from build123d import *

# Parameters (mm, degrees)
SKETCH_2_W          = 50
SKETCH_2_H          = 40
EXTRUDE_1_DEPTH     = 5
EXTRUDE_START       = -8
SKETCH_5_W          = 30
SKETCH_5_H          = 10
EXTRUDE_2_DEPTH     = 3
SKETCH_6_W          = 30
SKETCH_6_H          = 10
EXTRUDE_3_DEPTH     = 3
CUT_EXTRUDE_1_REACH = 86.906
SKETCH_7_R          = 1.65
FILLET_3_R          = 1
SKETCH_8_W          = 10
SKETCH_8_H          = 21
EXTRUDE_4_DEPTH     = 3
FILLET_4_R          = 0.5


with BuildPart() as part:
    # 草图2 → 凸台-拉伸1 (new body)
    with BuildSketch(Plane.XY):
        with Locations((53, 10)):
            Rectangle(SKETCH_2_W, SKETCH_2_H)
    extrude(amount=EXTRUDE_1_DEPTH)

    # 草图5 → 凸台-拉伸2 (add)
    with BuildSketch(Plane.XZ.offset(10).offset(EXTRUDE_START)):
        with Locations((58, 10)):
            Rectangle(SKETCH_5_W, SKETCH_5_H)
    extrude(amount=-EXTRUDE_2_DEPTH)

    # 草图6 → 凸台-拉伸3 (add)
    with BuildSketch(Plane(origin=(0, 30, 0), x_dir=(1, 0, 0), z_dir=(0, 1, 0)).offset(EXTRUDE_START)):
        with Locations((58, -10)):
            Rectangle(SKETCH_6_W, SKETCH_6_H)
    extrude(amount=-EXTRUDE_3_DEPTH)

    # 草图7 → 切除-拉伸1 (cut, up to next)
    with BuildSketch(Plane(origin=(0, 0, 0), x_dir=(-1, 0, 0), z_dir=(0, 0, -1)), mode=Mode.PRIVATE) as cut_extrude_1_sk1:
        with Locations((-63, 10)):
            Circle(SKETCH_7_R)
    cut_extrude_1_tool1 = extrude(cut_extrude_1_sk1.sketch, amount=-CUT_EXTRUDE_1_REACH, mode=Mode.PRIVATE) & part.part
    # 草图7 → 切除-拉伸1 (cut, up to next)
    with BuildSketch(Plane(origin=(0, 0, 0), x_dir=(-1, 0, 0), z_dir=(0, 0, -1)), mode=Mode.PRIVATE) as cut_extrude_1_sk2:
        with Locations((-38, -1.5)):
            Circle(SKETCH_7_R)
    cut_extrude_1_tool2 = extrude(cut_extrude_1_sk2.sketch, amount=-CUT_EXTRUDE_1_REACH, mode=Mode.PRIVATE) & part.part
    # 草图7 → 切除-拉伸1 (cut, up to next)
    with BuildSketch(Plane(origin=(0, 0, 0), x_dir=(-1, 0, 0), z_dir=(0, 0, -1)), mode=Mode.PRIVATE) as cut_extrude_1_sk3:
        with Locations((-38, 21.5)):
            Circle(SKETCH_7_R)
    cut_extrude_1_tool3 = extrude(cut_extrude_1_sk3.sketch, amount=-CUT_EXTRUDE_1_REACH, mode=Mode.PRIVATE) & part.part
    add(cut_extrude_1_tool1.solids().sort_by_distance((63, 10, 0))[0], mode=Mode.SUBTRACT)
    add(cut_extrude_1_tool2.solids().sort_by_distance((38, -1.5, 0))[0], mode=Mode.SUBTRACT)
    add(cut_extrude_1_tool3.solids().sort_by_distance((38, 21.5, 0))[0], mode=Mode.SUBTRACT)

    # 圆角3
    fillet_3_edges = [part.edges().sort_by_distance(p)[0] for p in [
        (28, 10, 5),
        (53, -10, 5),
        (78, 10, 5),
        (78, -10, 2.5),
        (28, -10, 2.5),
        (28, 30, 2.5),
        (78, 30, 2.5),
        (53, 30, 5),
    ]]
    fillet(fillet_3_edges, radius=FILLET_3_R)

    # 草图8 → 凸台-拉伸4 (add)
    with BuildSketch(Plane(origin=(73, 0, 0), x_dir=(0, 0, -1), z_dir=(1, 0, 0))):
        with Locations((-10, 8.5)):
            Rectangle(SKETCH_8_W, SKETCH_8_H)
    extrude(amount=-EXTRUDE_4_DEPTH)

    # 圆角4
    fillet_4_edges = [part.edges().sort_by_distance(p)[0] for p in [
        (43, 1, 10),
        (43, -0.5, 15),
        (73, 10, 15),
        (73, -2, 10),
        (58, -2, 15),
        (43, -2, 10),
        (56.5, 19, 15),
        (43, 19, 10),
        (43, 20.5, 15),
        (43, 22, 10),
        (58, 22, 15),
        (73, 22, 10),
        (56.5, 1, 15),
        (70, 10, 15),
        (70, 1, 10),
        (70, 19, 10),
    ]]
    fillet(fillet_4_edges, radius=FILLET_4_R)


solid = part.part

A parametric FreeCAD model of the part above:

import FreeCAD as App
import Part
import Sketcher
from FreeCAD import Vector
Q = App.Units.Quantity


def edges_at(feature, points):
    """Names of the edges that pass closest to the given points."""
    edges = feature.Shape.Edges
    near = lambda p: min(range(len(edges)), key=lambda i: edges[i].distToShape(Part.Vertex(*p))[0])
    return sorted({f"Edge{near(p) + 1}" for p in points})

doc = App.newDocument("Part")
body = doc.addObject("PartDesign::Body", "Body")

# Sketch on XY plane
sketch1 = body.newObject("Sketcher::SketchObject", "Sketch")
sketch1.AttachmentSupport = (doc.getObject("XY_Plane"), [""])
sketch1.MapMode = "FlatFace"
sketch1.addGeometry(Part.LineSegment(Vector(28, 30, 0), Vector(28, -10, 0)), False)
sketch1.addGeometry(Part.LineSegment(Vector(28, -10, 0), Vector(78, -10, 0)), False)
sketch1.addGeometry(Part.LineSegment(Vector(78, -10, 0), Vector(78, 30, 0)), False)
sketch1.addGeometry(Part.LineSegment(Vector(78, 30, 0), Vector(28, 30, 0)), False)
sketch1.addConstraint(Sketcher.Constraint("Coincident", 0, 2, 1, 1))
sketch1.addConstraint(Sketcher.Constraint("Coincident", 1, 2, 2, 1))
sketch1.addConstraint(Sketcher.Constraint("Coincident", 2, 2, 3, 1))
sketch1.addConstraint(Sketcher.Constraint("Coincident", 3, 2, 0, 1))
sketch1.addConstraint(Sketcher.Constraint("Vertical", 0))
sketch1.addConstraint(Sketcher.Constraint("Horizontal", 1))
sketch1.addConstraint(Sketcher.Constraint("Vertical", 2))
sketch1.addConstraint(Sketcher.Constraint("Horizontal", 3))
sketch1.addConstraint(Sketcher.Constraint("DistanceX", 1, 1, 1, 2, Q("50 mm")))
sketch1.addConstraint(Sketcher.Constraint("DistanceY", 0, 2, 0, 1, Q("40 mm")))
sketch1.addConstraint(Sketcher.Constraint("DistanceX", -1, 1, 0, 2, Q("28 mm")))
sketch1.addConstraint(Sketcher.Constraint("DistanceY", 0, 2, -1, 1, Q("10 mm")))
pad1 = body.newObject("PartDesign::Pad", "Pad")
pad1.Profile = sketch1
pad1.Length = 5

# Sketch on XZ plane
sketch2 = body.newObject("Sketcher::SketchObject", "Sketch001")
sketch2.AttachmentSupport = (doc.getObject("XZ_Plane"), [""])
sketch2.MapMode = "FlatFace"
sketch2.AttachmentOffset = App.Placement(Vector(0, 0, 2), App.Rotation())
sketch2.addGeometry(Part.LineSegment(Vector(43, 15, 0), Vector(43, 5, 0)), False)
sketch2.addGeometry(Part.LineSegment(Vector(43, 5, 0), Vector(73, 5, 0)), False)
sketch2.addGeometry(Part.LineSegment(Vector(73, 5, 0), Vector(73, 15, 0)), False)
sketch2.addGeometry(Part.LineSegment(Vector(73, 15, 0), Vector(43, 15, 0)), False)
sketch2.addConstraint(Sketcher.Constraint("Coincident", 0, 2, 1, 1))
sketch2.addConstraint(Sketcher.Constraint("Coincident", 1, 2, 2, 1))
sketch2.addConstraint(Sketcher.Constraint("Coincident", 2, 2, 3, 1))
sketch2.addConstraint(Sketcher.Constraint("Coincident", 3, 2, 0, 1))
sketch2.addConstraint(Sketcher.Constraint("Vertical", 0))
sketch2.addConstraint(Sketcher.Constraint("Horizontal", 1))
sketch2.addConstraint(Sketcher.Constraint("Vertical", 2))
sketch2.addConstraint(Sketcher.Constraint("Horizontal", 3))
sketch2.addConstraint(Sketcher.Constraint("DistanceX", 1, 1, 1, 2, Q("30 mm")))
sketch2.addConstraint(Sketcher.Constraint("DistanceY", 0, 2, 0, 1, Q("10 mm")))
sketch2.addConstraint(Sketcher.Constraint("DistanceX", -1, 1, 0, 2, Q("43 mm")))
sketch2.addConstraint(Sketcher.Constraint("DistanceY", -1, 1, 0, 2, Q("5 mm")))
pad2 = body.newObject("PartDesign::Pad", "Pad001")
pad2.Profile = sketch2
pad2.Length = 3
pad2.Reversed = True

# Sketch on XZ plane
sketch3 = body.newObject("Sketcher::SketchObject", "Sketch002")
sketch3.AttachmentSupport = (doc.getObject("XZ_Plane"), [""])
sketch3.MapMode = "FlatFace"
sketch3.AttachmentOffset = App.Placement(Vector(0, 0, -22), App.Rotation())
sketch3.addGeometry(Part.LineSegment(Vector(43, 5, 0), Vector(43, 15, 0)), False)
sketch3.addGeometry(Part.LineSegment(Vector(43, 15, 0), Vector(73, 15, 0)), False)
sketch3.addGeometry(Part.LineSegment(Vector(73, 15, 0), Vector(73, 5, 0)), False)
sketch3.addGeometry(Part.LineSegment(Vector(73, 5, 0), Vector(43, 5, 0)), False)
sketch3.addConstraint(Sketcher.Constraint("Coincident", 0, 2, 1, 1))
sketch3.addConstraint(Sketcher.Constraint("Coincident", 1, 2, 2, 1))
sketch3.addConstraint(Sketcher.Constraint("Coincident", 2, 2, 3, 1))
sketch3.addConstraint(Sketcher.Constraint("Coincident", 3, 2, 0, 1))
sketch3.addConstraint(Sketcher.Constraint("Vertical", 0))
sketch3.addConstraint(Sketcher.Constraint("Horizontal", 1))
sketch3.addConstraint(Sketcher.Constraint("Vertical", 2))
sketch3.addConstraint(Sketcher.Constraint("Horizontal", 3))
sketch3.addConstraint(Sketcher.Constraint("DistanceX", 1, 1, 1, 2, Q("30 mm")))
sketch3.addConstraint(Sketcher.Constraint("DistanceY", 0, 1, 0, 2, Q("10 mm")))
sketch3.addConstraint(Sketcher.Constraint("DistanceX", -1, 1, 0, 2, Q("43 mm")))
sketch3.addConstraint(Sketcher.Constraint("DistanceY", -1, 1, 0, 2, Q("15 mm")))
pad3 = body.newObject("PartDesign::Pad", "Pad002")
pad3.Profile = sketch3
pad3.Length = 3

# Sketch on XY plane
sketch4 = body.newObject("Sketcher::SketchObject", "Sketch003")
sketch4.AttachmentSupport = (doc.getObject("XY_Plane"), [""])
sketch4.MapMode = "FlatFace"
sketch4.addGeometry(Part.Circle(Vector(63, 10, 0), Vector(0, 0, 1), 1.6), False)
sketch4.addConstraint(Sketcher.Constraint("Diameter", 0, Q("3.3 mm")))
sketch4.addConstraint(Sketcher.Constraint("DistanceX", -1, 1, 0, 3, Q("63 mm")))
sketch4.addConstraint(Sketcher.Constraint("DistanceY", -1, 1, 0, 3, Q("10 mm")))
pocket1 = body.newObject("PartDesign::Pocket", "Pocket")
pocket1.Profile = sketch4
pocket1.Type = "UpToFirst"
pocket1.Reversed = True

# Sketch on XY plane
sketch5 = body.newObject("Sketcher::SketchObject", "Sketch004")
sketch5.AttachmentSupport = (doc.getObject("XY_Plane"), [""])
sketch5.MapMode = "FlatFace"
sketch5.addGeometry(Part.Circle(Vector(38, -1.5, 0), Vector(0, 0, 1), 1.6), False)
sketch5.addConstraint(Sketcher.Constraint("Diameter", 0, Q("3.3 mm")))
sketch5.addConstraint(Sketcher.Constraint("DistanceX", -1, 1, 0, 3, Q("38 mm")))
sketch5.addConstraint(Sketcher.Constraint("DistanceY", 0, 3, -1, 1, Q("1.5 mm")))
pocket2 = body.newObject("PartDesign::Pocket", "Pocket001")
pocket2.Profile = sketch5
pocket2.Type = "UpToFirst"
pocket2.Reversed = True

# Sketch on XY plane
sketch6 = body.newObject("Sketcher::SketchObject", "Sketch005")
sketch6.AttachmentSupport = (doc.getObject("XY_Plane"), [""])
sketch6.MapMode = "FlatFace"
sketch6.addGeometry(Part.Circle(Vector(38, 21.5, 0), Vector(0, 0, 1), 1.6), False)
sketch6.addConstraint(Sketcher.Constraint("Diameter", 0, Q("3.3 mm")))
sketch6.addConstraint(Sketcher.Constraint("DistanceX", -1, 1, 0, 3, Q("38 mm")))
sketch6.addConstraint(Sketcher.Constraint("DistanceY", -1, 1, 0, 3, Q("21.5 mm")))
pocket3 = body.newObject("PartDesign::Pocket", "Pocket002")
pocket3.Profile = sketch6
pocket3.Type = "UpToFirst"
pocket3.Reversed = True
doc.recompute()

fillet = body.newObject("PartDesign::Fillet", "Fillet")
fillet.Base = (pocket3, edges_at(pocket3, [
    (28, 10, 5),
    (53, -10, 5),
    (78, 10, 5),
    (78, -10, 2.5),
    (28, -10, 2.5),
    (28, 30, 2.5),
    (78, 30, 2.5),
    (53, 30, 5),
]))
fillet.Radius = 1

# Sketch on YZ plane
sketch7 = body.newObject("Sketcher::SketchObject", "Sketch006")
sketch7.AttachmentSupport = (doc.getObject("YZ_Plane"), [""])
sketch7.MapMode = "FlatFace"
sketch7.AttachmentOffset = App.Placement(Vector(0, 0, 73), App.Rotation())
sketch7.addGeometry(Part.LineSegment(Vector(19, 15, 0), Vector(-2, 15, 0)), False)
sketch7.addGeometry(Part.LineSegment(Vector(-2, 15, 0), Vector(-2, 5, 0)), False)
sketch7.addGeometry(Part.LineSegment(Vector(-2, 5, 0), Vector(19, 5, 0)), False)
sketch7.addGeometry(Part.LineSegment(Vector(19, 5, 0), Vector(19, 15, 0)), False)
sketch7.addConstraint(Sketcher.Constraint("Coincident", 0, 2, 1, 1))
sketch7.addConstraint(Sketcher.Constraint("Coincident", 1, 2, 2, 1))
sketch7.addConstraint(Sketcher.Constraint("Coincident", 2, 2, 3, 1))
sketch7.addConstraint(Sketcher.Constraint("Coincident", 3, 2, 0, 1))
sketch7.addConstraint(Sketcher.Constraint("Horizontal", 0))
sketch7.addConstraint(Sketcher.Constraint("Vertical", 1))
sketch7.addConstraint(Sketcher.Constraint("Horizontal", 2))
sketch7.addConstraint(Sketcher.Constraint("Vertical", 3))
sketch7.addConstraint(Sketcher.Constraint("DistanceX", 0, 2, 0, 1, Q("21 mm")))
sketch7.addConstraint(Sketcher.Constraint("DistanceY", 1, 2, 1, 1, Q("10 mm")))
sketch7.addConstraint(Sketcher.Constraint("DistanceX", 0, 2, -1, 1, Q("2 mm")))
sketch7.addConstraint(Sketcher.Constraint("DistanceY", -1, 1, 0, 2, Q("15 mm")))
pad4 = body.newObject("PartDesign::Pad", "Pad003")
pad4.Profile = sketch7
pad4.Length = 3
pad4.Reversed = True
doc.recompute()

fillet2 = body.newObject("PartDesign::Fillet", "Fillet001")
fillet2.Base = (pad4, edges_at(pad4, [
    (43, 1, 10),
    (43, -0.5, 15),
    (73, 10, 15),
    (73, -2, 10),
    (58, -2, 15),
    (43, -2, 10),
    (56.5, 19, 15),
    (43, 19, 10),
    (43, 20.5, 15),
    (43, 22, 10),
    (58, 22, 15),
    (73, 22, 10),
    (56.5, 1, 15),
    (70, 10, 15),
    (70, 1, 10),
    (70, 19, 10),
]))
fillet2.Radius = 0.5

doc.recompute()
